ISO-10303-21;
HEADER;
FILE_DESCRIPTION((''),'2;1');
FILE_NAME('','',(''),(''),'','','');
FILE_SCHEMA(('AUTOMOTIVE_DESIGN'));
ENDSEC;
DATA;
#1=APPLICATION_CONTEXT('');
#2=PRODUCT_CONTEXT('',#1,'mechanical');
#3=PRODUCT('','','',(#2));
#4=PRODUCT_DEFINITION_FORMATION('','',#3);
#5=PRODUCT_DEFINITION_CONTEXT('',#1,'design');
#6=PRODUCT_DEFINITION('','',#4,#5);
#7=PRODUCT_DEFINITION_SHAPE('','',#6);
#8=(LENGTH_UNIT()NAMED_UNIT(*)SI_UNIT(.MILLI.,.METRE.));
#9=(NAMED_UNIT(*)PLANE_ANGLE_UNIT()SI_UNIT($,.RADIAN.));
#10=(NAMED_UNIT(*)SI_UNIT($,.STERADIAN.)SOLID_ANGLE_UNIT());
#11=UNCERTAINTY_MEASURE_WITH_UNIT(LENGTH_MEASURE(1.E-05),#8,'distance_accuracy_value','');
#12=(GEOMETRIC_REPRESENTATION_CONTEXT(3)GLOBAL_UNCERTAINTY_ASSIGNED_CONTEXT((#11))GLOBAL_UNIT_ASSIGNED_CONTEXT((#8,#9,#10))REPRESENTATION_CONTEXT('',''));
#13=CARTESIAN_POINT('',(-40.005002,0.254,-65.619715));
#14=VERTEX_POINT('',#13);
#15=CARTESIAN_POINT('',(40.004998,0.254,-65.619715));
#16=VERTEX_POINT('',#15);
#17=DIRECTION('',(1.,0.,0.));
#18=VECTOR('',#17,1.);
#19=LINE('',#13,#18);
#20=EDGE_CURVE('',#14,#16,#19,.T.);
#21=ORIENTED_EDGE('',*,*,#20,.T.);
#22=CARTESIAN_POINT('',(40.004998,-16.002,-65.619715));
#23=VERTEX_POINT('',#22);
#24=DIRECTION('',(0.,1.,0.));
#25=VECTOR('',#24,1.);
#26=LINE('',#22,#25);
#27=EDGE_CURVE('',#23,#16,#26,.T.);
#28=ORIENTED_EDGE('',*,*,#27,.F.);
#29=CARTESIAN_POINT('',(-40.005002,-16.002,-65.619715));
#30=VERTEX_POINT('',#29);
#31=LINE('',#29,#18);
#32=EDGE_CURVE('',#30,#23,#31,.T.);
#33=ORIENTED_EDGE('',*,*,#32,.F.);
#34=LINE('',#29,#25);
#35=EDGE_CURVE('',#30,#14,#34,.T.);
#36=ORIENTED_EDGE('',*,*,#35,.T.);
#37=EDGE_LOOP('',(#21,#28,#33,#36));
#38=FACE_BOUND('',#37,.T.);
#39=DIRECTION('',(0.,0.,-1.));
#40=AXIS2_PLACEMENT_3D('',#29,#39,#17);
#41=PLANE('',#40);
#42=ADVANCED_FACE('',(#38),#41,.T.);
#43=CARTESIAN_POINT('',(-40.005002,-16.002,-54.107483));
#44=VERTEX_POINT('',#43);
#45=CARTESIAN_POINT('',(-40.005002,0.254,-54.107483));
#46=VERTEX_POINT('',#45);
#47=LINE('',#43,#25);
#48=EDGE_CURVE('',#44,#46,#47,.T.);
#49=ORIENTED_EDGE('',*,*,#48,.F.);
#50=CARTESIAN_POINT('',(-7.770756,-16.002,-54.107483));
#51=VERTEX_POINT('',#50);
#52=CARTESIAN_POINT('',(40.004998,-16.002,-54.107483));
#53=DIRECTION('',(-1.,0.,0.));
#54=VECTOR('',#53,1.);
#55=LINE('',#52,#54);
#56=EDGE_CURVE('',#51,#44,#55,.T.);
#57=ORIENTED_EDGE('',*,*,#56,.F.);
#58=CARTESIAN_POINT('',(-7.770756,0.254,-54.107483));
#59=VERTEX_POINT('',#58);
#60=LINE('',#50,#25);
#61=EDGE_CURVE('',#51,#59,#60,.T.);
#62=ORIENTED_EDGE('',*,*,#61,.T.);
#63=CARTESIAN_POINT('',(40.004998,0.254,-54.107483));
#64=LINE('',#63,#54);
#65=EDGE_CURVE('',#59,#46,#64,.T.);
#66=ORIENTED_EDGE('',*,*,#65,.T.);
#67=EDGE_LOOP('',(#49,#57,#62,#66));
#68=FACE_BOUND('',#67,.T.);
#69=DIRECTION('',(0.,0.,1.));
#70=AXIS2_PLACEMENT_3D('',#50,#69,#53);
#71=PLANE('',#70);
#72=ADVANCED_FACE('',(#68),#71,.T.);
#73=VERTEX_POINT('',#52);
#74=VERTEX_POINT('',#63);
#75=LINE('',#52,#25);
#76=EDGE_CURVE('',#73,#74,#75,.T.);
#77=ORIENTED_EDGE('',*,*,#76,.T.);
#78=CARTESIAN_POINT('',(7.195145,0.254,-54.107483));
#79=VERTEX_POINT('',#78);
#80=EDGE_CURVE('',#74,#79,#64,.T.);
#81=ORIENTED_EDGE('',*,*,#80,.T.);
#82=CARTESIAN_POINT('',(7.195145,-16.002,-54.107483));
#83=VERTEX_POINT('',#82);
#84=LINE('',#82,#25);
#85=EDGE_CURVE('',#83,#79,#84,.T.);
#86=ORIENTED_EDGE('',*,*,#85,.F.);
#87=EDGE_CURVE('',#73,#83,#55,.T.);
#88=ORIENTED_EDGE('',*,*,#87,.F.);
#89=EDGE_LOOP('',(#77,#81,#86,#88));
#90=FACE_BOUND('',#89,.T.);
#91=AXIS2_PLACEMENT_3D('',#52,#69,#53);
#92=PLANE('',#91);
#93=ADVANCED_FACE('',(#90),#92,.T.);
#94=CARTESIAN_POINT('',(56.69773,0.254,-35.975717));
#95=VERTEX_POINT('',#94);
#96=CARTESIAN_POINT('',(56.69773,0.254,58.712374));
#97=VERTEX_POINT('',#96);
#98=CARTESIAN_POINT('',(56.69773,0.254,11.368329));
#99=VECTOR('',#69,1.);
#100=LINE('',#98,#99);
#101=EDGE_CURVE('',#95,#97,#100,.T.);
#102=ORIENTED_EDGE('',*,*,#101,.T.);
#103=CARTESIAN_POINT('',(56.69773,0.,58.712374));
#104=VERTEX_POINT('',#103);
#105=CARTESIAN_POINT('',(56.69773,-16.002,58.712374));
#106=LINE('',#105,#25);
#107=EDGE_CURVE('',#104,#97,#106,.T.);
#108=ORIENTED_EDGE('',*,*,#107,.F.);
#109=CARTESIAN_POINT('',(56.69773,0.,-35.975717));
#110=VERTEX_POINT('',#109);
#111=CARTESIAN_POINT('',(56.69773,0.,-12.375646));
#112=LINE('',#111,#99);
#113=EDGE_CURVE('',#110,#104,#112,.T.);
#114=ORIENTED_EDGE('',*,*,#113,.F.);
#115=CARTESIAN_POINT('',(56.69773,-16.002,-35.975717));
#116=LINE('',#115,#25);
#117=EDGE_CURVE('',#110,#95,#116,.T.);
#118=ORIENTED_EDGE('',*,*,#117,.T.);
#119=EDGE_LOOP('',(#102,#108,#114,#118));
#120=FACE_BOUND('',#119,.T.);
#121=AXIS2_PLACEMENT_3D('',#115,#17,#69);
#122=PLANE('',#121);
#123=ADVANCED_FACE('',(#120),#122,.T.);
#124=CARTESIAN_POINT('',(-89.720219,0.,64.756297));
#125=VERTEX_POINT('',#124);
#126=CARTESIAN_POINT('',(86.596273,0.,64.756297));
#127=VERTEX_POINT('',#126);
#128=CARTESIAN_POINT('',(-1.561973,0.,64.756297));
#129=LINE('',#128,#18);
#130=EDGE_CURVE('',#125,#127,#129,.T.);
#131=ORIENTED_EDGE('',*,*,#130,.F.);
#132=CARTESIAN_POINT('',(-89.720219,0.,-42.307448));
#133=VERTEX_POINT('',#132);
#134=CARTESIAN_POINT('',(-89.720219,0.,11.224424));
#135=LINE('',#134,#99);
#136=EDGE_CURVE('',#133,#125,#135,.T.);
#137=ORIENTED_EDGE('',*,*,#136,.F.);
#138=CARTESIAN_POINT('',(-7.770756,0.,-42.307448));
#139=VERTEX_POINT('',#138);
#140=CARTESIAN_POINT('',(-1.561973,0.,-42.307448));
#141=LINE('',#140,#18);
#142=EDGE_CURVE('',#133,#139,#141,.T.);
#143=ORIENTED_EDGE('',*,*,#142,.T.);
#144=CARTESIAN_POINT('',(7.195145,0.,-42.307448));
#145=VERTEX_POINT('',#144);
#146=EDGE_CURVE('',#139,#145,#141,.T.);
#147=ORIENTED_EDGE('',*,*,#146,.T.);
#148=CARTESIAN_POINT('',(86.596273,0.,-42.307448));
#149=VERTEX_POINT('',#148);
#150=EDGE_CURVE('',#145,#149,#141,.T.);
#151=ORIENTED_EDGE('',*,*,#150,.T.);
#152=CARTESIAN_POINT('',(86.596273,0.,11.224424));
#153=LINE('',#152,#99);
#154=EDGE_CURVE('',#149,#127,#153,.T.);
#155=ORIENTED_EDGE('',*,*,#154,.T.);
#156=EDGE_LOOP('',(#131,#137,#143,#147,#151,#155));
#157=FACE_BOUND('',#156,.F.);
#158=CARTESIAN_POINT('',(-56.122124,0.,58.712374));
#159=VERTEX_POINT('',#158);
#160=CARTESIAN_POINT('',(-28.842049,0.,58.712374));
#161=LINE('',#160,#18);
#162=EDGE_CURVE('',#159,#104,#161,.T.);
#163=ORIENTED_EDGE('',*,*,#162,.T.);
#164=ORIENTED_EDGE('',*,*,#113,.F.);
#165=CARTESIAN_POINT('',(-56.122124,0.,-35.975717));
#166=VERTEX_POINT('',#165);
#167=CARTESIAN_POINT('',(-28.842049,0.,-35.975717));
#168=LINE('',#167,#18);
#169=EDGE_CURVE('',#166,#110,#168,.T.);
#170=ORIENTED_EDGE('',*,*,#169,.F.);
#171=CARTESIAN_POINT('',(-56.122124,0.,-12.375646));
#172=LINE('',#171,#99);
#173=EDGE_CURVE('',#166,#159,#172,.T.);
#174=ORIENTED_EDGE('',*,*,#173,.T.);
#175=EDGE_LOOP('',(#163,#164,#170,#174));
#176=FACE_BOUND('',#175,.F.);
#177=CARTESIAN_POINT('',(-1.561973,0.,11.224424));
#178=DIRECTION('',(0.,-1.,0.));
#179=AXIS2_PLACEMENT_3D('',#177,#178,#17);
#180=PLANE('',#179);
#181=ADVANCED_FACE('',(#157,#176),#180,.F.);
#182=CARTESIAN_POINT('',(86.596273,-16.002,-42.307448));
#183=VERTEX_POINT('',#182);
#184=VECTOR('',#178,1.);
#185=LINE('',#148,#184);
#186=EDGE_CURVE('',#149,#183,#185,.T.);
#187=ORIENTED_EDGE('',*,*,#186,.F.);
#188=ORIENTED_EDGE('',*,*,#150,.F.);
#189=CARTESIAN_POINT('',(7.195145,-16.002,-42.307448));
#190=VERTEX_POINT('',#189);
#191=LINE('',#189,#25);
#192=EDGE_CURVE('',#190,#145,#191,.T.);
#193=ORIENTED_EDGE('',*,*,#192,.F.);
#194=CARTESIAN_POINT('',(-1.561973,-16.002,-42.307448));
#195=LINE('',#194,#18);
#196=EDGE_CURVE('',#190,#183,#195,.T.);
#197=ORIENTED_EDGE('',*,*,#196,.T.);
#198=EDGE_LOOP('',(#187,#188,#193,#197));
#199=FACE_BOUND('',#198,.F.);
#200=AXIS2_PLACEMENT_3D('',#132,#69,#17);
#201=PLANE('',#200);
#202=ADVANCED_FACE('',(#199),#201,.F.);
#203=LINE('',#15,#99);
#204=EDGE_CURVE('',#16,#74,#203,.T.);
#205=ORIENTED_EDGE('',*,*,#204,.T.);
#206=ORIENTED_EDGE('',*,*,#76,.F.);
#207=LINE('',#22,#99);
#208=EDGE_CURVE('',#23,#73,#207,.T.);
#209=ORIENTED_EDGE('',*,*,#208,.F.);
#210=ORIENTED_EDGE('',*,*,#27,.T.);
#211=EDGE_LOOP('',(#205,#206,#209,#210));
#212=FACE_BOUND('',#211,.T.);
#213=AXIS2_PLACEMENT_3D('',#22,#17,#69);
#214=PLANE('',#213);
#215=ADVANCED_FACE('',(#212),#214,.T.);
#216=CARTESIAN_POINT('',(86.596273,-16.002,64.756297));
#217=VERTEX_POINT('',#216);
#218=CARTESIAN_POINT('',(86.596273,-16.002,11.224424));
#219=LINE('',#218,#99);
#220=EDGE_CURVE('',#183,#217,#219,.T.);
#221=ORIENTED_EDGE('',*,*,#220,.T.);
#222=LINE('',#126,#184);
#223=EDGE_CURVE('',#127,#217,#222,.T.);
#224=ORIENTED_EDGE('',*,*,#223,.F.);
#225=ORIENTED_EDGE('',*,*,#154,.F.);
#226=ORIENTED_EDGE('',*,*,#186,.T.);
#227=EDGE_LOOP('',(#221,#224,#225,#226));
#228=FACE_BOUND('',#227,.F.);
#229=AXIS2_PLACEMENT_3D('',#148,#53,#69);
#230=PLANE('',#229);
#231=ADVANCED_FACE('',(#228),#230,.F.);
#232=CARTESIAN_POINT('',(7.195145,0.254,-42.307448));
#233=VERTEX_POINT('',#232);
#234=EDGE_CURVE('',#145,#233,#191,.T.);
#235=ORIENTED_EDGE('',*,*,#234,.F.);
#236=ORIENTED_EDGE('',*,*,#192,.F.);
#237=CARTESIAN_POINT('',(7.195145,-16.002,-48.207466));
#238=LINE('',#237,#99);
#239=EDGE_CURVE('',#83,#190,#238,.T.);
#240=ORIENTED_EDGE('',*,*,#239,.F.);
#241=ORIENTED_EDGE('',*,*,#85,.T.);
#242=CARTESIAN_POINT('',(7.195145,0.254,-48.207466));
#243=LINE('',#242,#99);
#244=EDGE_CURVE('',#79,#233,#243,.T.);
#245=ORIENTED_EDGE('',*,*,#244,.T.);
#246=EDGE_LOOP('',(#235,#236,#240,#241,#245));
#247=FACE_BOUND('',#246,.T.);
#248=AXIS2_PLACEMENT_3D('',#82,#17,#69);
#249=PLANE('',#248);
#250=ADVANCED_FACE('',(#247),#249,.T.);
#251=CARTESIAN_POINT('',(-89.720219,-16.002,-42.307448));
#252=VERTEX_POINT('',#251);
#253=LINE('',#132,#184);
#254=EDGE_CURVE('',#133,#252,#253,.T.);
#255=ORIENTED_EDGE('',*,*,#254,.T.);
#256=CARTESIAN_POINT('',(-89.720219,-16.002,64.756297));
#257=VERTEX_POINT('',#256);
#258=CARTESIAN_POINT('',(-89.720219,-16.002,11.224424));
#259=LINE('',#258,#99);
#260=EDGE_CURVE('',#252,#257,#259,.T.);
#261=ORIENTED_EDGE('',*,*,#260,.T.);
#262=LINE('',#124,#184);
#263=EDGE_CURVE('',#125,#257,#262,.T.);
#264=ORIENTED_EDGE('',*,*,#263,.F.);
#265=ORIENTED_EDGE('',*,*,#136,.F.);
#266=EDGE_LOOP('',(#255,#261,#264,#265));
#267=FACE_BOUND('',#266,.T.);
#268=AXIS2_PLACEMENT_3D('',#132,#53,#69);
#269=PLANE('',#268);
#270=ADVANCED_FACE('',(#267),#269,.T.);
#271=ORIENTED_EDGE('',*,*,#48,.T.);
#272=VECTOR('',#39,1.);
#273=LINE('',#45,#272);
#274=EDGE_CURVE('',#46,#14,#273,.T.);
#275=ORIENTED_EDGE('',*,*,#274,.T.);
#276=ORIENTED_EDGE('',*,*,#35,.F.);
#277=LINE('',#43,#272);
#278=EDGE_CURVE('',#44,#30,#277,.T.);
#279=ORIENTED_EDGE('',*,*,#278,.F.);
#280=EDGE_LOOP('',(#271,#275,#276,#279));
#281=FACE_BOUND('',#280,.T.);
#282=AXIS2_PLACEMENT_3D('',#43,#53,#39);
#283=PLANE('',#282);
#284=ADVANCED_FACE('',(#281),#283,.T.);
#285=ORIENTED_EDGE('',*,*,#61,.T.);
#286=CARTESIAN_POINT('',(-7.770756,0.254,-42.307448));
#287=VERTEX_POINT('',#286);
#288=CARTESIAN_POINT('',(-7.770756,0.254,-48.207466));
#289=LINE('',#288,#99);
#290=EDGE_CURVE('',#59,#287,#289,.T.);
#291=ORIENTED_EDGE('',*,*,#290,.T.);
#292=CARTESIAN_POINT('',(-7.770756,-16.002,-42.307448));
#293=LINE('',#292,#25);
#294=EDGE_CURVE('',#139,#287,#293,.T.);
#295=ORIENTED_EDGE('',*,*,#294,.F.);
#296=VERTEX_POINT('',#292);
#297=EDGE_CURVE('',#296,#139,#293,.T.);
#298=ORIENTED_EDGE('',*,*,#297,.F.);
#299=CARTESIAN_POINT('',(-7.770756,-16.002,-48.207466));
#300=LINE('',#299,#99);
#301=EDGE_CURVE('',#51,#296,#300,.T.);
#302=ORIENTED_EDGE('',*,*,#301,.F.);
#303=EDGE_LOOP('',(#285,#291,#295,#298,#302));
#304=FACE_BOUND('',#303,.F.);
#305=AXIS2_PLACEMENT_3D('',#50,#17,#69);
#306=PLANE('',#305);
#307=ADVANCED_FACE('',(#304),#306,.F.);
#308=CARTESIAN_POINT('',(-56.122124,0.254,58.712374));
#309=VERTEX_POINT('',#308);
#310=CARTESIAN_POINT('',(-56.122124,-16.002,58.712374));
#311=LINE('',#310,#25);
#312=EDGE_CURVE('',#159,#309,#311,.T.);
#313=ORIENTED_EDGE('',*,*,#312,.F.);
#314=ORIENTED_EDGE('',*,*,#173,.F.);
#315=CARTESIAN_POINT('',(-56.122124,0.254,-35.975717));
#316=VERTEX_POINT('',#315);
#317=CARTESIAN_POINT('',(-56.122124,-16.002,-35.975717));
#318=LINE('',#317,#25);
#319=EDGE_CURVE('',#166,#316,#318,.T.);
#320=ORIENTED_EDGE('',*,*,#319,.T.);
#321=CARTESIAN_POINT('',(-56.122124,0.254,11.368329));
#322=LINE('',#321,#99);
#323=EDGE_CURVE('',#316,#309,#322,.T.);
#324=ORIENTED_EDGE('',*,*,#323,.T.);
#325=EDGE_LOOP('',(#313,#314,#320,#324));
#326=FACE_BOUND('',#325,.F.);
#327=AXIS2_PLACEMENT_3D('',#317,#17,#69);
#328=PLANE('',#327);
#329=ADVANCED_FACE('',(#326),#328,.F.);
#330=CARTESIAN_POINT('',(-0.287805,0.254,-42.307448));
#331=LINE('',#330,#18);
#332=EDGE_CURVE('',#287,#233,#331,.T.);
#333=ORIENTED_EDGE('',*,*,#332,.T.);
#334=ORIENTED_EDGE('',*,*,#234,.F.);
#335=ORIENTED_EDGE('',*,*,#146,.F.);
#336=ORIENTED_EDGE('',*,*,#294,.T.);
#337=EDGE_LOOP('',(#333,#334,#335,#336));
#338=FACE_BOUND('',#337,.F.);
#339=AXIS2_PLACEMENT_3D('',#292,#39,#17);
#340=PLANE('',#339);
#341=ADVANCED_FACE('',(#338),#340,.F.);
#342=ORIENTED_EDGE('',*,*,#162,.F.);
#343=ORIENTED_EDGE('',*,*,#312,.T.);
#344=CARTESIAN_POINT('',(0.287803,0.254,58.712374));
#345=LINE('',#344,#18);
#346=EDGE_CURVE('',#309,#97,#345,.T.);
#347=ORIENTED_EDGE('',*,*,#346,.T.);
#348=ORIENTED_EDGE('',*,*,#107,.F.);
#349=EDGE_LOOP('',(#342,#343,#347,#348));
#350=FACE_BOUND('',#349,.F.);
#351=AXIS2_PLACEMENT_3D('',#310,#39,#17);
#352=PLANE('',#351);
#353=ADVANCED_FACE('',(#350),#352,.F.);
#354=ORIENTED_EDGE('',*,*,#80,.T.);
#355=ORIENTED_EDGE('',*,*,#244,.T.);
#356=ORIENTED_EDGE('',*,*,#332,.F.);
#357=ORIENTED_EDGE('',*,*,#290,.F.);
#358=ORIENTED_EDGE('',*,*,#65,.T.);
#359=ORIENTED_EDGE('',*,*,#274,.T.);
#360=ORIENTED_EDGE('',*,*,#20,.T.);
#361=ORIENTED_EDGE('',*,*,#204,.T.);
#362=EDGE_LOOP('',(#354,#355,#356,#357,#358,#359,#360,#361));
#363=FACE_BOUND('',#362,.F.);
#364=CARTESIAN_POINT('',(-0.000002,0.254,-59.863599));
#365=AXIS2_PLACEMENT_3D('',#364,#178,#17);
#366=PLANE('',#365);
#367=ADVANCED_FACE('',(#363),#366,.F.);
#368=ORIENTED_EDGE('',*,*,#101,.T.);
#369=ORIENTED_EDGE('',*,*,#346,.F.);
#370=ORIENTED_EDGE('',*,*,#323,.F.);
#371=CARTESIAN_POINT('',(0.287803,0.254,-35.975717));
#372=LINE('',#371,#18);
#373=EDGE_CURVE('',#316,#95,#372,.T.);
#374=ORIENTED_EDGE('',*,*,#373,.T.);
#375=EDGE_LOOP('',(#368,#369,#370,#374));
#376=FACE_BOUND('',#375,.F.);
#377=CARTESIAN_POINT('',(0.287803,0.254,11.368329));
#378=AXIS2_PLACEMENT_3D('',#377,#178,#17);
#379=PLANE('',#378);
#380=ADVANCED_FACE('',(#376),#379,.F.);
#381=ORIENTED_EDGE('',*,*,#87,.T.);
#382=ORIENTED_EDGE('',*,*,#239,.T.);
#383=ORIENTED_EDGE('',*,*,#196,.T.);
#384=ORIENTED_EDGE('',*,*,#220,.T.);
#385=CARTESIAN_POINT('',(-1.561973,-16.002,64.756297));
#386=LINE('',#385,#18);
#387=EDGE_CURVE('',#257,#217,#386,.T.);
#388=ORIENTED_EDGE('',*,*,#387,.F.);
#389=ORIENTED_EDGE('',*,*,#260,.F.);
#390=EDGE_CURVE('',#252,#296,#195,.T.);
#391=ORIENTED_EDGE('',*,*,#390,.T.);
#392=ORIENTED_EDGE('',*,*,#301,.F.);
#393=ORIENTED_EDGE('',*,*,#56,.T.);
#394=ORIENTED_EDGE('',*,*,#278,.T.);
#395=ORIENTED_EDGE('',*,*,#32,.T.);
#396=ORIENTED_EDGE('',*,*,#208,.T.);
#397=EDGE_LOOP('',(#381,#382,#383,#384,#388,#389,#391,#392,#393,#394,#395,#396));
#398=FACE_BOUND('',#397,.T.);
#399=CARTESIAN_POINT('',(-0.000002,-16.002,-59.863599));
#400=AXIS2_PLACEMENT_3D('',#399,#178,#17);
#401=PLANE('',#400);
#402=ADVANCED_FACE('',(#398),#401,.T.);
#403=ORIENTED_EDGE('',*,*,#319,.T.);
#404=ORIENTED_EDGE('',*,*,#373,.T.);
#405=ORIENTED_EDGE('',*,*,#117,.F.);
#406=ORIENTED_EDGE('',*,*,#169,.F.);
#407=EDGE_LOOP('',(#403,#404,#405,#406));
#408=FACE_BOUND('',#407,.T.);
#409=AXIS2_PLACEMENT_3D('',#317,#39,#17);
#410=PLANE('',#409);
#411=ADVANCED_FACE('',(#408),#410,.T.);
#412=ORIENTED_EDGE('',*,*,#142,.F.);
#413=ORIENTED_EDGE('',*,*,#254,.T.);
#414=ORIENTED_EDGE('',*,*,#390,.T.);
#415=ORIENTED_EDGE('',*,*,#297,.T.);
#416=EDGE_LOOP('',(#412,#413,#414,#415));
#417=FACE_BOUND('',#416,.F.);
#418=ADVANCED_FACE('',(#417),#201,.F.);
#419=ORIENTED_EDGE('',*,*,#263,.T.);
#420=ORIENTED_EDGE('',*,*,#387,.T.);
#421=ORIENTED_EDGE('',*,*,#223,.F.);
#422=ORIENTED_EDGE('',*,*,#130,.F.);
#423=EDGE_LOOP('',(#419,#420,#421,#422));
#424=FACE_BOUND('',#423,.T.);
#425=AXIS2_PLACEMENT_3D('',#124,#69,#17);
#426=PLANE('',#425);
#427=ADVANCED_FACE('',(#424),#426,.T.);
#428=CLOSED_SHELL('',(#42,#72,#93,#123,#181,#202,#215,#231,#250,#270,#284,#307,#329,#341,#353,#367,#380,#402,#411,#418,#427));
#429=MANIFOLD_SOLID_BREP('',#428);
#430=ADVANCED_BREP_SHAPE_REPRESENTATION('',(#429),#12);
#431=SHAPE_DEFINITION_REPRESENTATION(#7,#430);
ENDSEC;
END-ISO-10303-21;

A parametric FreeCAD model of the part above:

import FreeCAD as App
import Part
import Sketcher
Q = App.Units.Quantity


def add_polygon(sketch, points):
    """Adds a closed chain of lines whose ends are joined by coincident constraints."""
    first, n = sketch.GeometryCount, len(points)
    for a, b in zip(points, points[1:] + points[:1]):
        sketch.addGeometry(Part.LineSegment(App.Vector(*a, 0), App.Vector(*b, 0)), False)
    for i in range(n):
        sketch.addConstraint(Sketcher.Constraint("Coincident", first + i, 2, first + (i + 1) % n, 1))

doc = App.newDocument("Part")
body = doc.addObject("PartDesign::Body", "Body")

# Sketch on XZ plane
sketch1 = doc.addObject("Sketcher::SketchObject", "Sketch")
body.addObject(sketch1)
sketch1.AttachmentSupport = (doc.XZ_Plane, [""])
sketch1.MapMode = "FlatFace"
add_polygon(sketch1, [(-89.720219, 64.756297), (-89.720219, -42.307448), (86.596273, -42.307448), (86.596273, 64.756297)])  # lines 0-3
sketch1.addConstraint(Sketcher.Constraint("Vertical", 0))
sketch1.addConstraint(Sketcher.Constraint("Horizontal", 1))
sketch1.addConstraint(Sketcher.Constraint("Vertical", 2))
sketch1.addConstraint(Sketcher.Constraint("Horizontal", 3))
sketch1.addConstraint(Sketcher.Constraint("DistanceX", 1, 1, 1, 2, 176.316492))
sketch1.addConstraint(Sketcher.Constraint("DistanceY", 0, 2, 0, 1, 107.063744))
sketch1.addConstraint(Sketcher.Constraint("DistanceX", 0, 2, -1, 1, 89.720219))
sketch1.addConstraint(Sketcher.Constraint("DistanceY", 0, 2, -1, 1, 42.307448))
pad1 = doc.addObject("PartDesign::Pad", "Pad")
body.addObject(pad1)
pad1.Profile = sketch1
pad1.Length = Q("0.63 in")

# Sketch on XZ plane
sketch2 = doc.addObject("Sketcher::SketchObject", "Sketch001")
body.addObject(sketch2)
sketch2.AttachmentSupport = (doc.XZ_Plane, [""])
sketch2.MapMode = "FlatFace"
sketch2.AttachmentOffset = App.Placement(App.Vector(0, 0, 0.63 * 25.4), App.Rotation())
add_polygon(sketch2, [(-40.005002, -54.107483), (-40.005002, -65.619715), (40.004998, -65.619715), (40.004998, -54.107483), (7.195145, -54.107483), (7.195145, -42.307448), (-7.770756, -42.307448), (-7.770756, -54.107483)])  # lines 0-7
add_polygon(sketch2, [(-56.122124, 58.712374), (-56.122124, -35.975717), (56.69773, -35.975717), (56.69773, 58.712374)])  # lines 8-11
sketch2.addConstraint(Sketcher.Constraint("Vertical", 0))
sketch2.addConstraint(Sketcher.Constraint("Horizontal", 1))
sketch2.addConstraint(Sketcher.Constraint("Vertical", 2))
sketch2.addConstraint(Sketcher.Constraint("Horizontal", 3))
sketch2.addConstraint(Sketcher.Constraint("Vertical", 4))
sketch2.addConstraint(Sketcher.Constraint("Horizontal", 5))
sketch2.addConstraint(Sketcher.Constraint("Vertical", 6))
sketch2.addConstraint(Sketcher.Constraint("Horizontal", 7))
sketch2.addConstraint(Sketcher.Constraint("Vertical", 8))
sketch2.addConstraint(Sketcher.Constraint("Horizontal", 9))
sketch2.addConstraint(Sketcher.Constraint("Vertical", 10))
sketch2.addConstraint(Sketcher.Constraint("Horizontal", 11))
sketch2.addConstraint(Sketcher.Constraint("Symmetric", 2, 2, 7, 2, -2))
sketch2.addConstraint(Sketcher.Constraint("DistanceX", 1, 1, 1, 2, Q("3.15 in")))
sketch2.addConstraint(Sketcher.Constraint("DistanceX", 5, 2, 5, 1, 14.965902))
sketch2.addConstraint(Sketcher.Constraint("DistanceY", 0, 2, 0, 1, 11.512231))
sketch2.addConstraint(Sketcher.Constraint("DistanceY", 8, 2, 8, 1, 94.688091))
sketch2.addConstraint(Sketcher.Constraint("DistanceX", 3, 2, 3, 1, 32.809853))
sketch2.addConstraint(Sketcher.Constraint("DistanceX", 9, 1, 9, 2, 112.819854))
sketch2.addConstraint(Sketcher.Constraint("DistanceY", 4, 1, 4, 2, 11.800036))
sketch2.addConstraint(Sketcher.Constraint("DistanceX", -1, 1, 9, 2, 56.69773))
sketch2.addConstraint(Sketcher.Constraint("DistanceY", 5, 2, 8, 2, 6.331731))
sketch2.addConstraint(Sketcher.Constraint("DistanceY", 0, 2, -1, 1, 65.619715))
pad2 = doc.addObject("PartDesign::Pad", "Pad001")
body.addObject(pad2)
pad2.Profile = sketch2
pad2.Length = Q("0.64 in")
pad2.Reversed = True

doc.recompute()
